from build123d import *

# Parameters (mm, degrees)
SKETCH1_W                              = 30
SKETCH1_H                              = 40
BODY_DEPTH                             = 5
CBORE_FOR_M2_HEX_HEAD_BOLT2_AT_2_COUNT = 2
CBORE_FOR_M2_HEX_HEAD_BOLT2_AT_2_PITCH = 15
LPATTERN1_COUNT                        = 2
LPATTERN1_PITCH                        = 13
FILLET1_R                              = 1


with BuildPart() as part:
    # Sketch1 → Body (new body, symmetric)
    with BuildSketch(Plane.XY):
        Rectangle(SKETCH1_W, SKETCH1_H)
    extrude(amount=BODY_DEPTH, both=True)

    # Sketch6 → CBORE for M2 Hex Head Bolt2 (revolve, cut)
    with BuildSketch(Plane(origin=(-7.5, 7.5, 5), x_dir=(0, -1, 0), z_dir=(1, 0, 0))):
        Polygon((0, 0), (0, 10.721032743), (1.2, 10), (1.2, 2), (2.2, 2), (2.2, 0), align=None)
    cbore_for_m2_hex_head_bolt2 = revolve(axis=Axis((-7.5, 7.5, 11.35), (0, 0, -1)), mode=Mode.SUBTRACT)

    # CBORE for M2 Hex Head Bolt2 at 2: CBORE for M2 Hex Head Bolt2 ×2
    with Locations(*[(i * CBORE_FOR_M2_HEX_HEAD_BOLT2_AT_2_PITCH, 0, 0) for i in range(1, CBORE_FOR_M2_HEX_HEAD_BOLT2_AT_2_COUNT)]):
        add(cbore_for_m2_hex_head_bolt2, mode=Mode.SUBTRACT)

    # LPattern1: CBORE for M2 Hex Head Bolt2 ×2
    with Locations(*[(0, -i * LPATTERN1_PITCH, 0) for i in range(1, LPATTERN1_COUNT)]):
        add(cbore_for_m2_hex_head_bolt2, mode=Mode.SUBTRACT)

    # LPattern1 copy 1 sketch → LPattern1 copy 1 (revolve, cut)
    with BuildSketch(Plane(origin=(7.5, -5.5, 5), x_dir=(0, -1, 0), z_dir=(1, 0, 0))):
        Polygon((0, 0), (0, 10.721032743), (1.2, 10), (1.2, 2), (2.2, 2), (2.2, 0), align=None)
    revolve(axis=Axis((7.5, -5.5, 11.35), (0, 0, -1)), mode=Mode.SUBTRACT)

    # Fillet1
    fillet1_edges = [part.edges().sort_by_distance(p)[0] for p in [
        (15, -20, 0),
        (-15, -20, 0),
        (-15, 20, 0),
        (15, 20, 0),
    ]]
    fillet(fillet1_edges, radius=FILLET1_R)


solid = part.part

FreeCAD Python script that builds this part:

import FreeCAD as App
import Part
import Sketcher
from FreeCAD import Vector
Q = App.Units.Quantity


def edges_at(feature, points):
    """Names of the edges that pass closest to the given points."""
    edges = feature.Shape.Edges
    near = lambda p: min(range(len(edges)), key=lambda i: edges[i].distToShape(Part.Vertex(*p))[0])
    return sorted({f"Edge{near(p) + 1}" for p in points})

doc = App.newDocument("Part")
body = doc.addObject("PartDesign::Body", "Body")

# Sketch on XY plane
sketch1 = doc.addObject("Sketcher::SketchObject", "Sketch")
body.addObject(sketch1)
sketch1.AttachmentSupport = (doc.XY_Plane, [""])
sketch1.MapMode = "FlatFace"
sketch1.addGeometry(Part.LineSegment(Vector(-15, 20, 0), Vector(-15, -20, 0)), False)
sketch1.addGeometry(Part.LineSegment(Vector(-15, -20, 0), Vector(15, -20, 0)), False)
sketch1.addGeometry(Part.LineSegment(Vector(15, -20, 0), Vector(15, 20, 0)), False)
sketch1.addGeometry(Part.LineSegment(Vector(15, 20, 0), Vector(-15, 20, 0)), False)
sketch1.addConstraint(Sketcher.Constraint("Coincident", 0, 2, 1, 1))
sketch1.addConstraint(Sketcher.Constraint("Coincident", 1, 2, 2, 1))
sketch1.addConstraint(Sketcher.Constraint("Coincident", 2, 2, 3, 1))
sketch1.addConstraint(Sketcher.Constraint("Coincident", 3, 2, 0, 1))
sketch1.addConstraint(Sketcher.Constraint("Vertical", 0))
sketch1.addConstraint(Sketcher.Constraint("Horizontal", 1))
sketch1.addConstraint(Sketcher.Constraint("Vertical", 2))
sketch1.addConstraint(Sketcher.Constraint("Horizontal", 3))
sketch1.addConstraint(Sketcher.Constraint("Symmetric", 0, 2, 2, 2, -1, 1))
sketch1.addConstraint(Sketcher.Constraint("DistanceX", 1, 1, 1, 2, 30.0))
sketch1.addConstraint(Sketcher.Constraint("DistanceY", 0, 2, 0, 1, 40.0))
pad1 = doc.addObject("PartDesign::Pad", "Pad")
body.addObject(pad1)
pad1.Profile = sketch1
pad1.Length = 10
pad1.Midplane = True

# Sketch on YZ plane
sketch2 = doc.addObject("Sketcher::SketchObject", "Sketch001")
body.addObject(sketch2)
sketch2.AttachmentSupport = (doc.YZ_Plane, [""])
sketch2.MapMode = "FlatFace"
sketch2.AttachmentOffset = App.Placement(Vector(0, 0, -7.5), App.Rotation())
sketch2.addGeometry(Part.LineSegment(Vector(7.5, -5.7, 0), Vector(7.5, 5, 0)), False)
sketch2.addGeometry(Part.LineSegment(Vector(7.5, 5, 0), Vector(5.3, 5, 0)), False)
sketch2.addGeometry(Part.LineSegment(Vector(5.3, 5, 0), Vector(5.3, 3, 0)), False)
sketch2.addGeometry(Part.LineSegment(Vector(5.3, 3, 0), Vector(6.3, 3, 0)), False)
sketch2.addGeometry(Part.LineSegment(Vector(6.3, 3, 0), Vector(6.3, -5, 0)), False)
sketch2.addGeometry(Part.LineSegment(Vector(6.3, -5, 0), Vector(7.5, -5.7, 0)), False)
sketch2.addGeometry(Part.LineSegment(Vector(7.5, 5, 0), Vector(7.5, -5.7, 0)), True)  # axis
sketch2.addConstraint(Sketcher.Constraint("Coincident", 0, 2, 1, 1))
sketch2.addConstraint(Sketcher.Constraint("Coincident", 1, 2, 2, 1))
sketch2.addConstraint(Sketcher.Constraint("Coincident", 2, 2, 3, 1))
sketch2.addConstraint(Sketcher.Constraint("Coincident", 3, 2, 4, 1))
sketch2.addConstraint(Sketcher.Constraint("Coincident", 4, 2, 5, 1))
sketch2.addConstraint(Sketcher.Constraint("Coincident", 5, 2, 0, 1))
sketch2.addConstraint(Sketcher.Constraint("Vertical", 0))
sketch2.addConstraint(Sketcher.Constraint("Horizontal", 1))
sketch2.addConstraint(Sketcher.Constraint("Vertical", 2))
sketch2.addConstraint(Sketcher.Constraint("Horizontal", 3))
sketch2.addConstraint(Sketcher.Constraint("Vertical", 4))
sketch2.addConstraint(Sketcher.Constraint("Vertical", 6))
sketch2.addConstraint(Sketcher.Constraint("Coincident", 6, 1, 0, 2))
sketch2.addConstraint(Sketcher.Constraint("Equal", 0, 6))
sketch2.addConstraint(Sketcher.Constraint("DistanceX", 3, 1, 3, 2, 1.0))
sketch2.addConstraint(Sketcher.Constraint("DistanceY", 2, 2, 2, 1, 2.0))
sketch2.addConstraint(Sketcher.Constraint("DistanceY", 4, 2, 4, 1, 8.0))
sketch2.addConstraint(Sketcher.Constraint("Angle", 5, Q("-31 deg")))
sketch2.addConstraint(Sketcher.Constraint("DistanceX", 1, 2, 1, 1, 2.2))
sketch2.addConstraint(Sketcher.Constraint("DistanceY", -1, 1, 0, 2, 5.0))
sketch2.addConstraint(Sketcher.Constraint("DistanceX", -1, 1, 0, 2, 7.5))
groove = doc.addObject("PartDesign::Groove", "Groove")
body.addObject(groove)
groove.Profile = sketch2
groove.ReferenceAxis = (sketch2, ["Axis0"])
groove.Angle = 360
doc.recompute()

linearpattern = doc.addObject("PartDesign::LinearPattern", "LinearPattern")
body.addObject(linearpattern)
linearpattern.Originals = [groove]
linearpattern.Direction = (doc.X_Axis, [""])
linearpattern.Mode = "offset"
linearpattern.Offset = 15
linearpattern.Occurrences = 2
body.Tip = linearpattern
doc.recompute()

linearpattern2 = doc.addObject("PartDesign::LinearPattern", "LinearPattern001")
body.addObject(linearpattern2)
linearpattern2.Originals = [groove]
linearpattern2.Direction = (doc.Y_Axis, [""])
linearpattern2.Mode = "offset"
linearpattern2.Offset = 13
linearpattern2.Occurrences = 2
linearpattern2.Reversed = True
body.Tip = linearpattern2

# Sketch on YZ plane
sketch3 = doc.addObject("Sketcher::SketchObject", "Sketch002")
body.addObject(sketch3)
sketch3.AttachmentSupport = (doc.YZ_Plane, [""])
sketch3.MapMode = "FlatFace"
sketch3.AttachmentOffset = App.Placement(Vector(0, 0, 7.5), App.Rotation())
sketch3.addGeometry(Part.LineSegment(Vector(-5.5, -5.7, 0), Vector(-5.5, 5, 0)), False)
sketch3.addGeometry(Part.LineSegment(Vector(-5.5, 5, 0), Vector(-7.7, 5, 0)), False)
sketch3.addGeometry(Part.LineSegment(Vector(-7.7, 5, 0), Vector(-7.7, 3, 0)), False)
sketch3.addGeometry(Part.LineSegment(Vector(-7.7, 3, 0), Vector(-6.7, 3, 0)), False)
sketch3.addGeometry(Part.LineSegment(Vector(-6.7, 3, 0), Vector(-6.7, -5, 0)), False)
sketch3.addGeometry(Part.LineSegment(Vector(-6.7, -5, 0), Vector(-5.5, -5.7, 0)), False)
sketch3.addGeometry(Part.LineSegment(Vector(-5.5, 5, 0), Vector(-5.5, -5.7, 0)), True)  # axis
sketch3.addConstraint(Sketcher.Constraint("Coincident", 0, 2, 1, 1))
sketch3.addConstraint(Sketcher.Constraint("Coincident", 1, 2, 2, 1))
sketch3.addConstraint(Sketcher.Constraint("Coincident", 2, 2, 3, 1))
sketch3.addConstraint(Sketcher.Constraint("Coincident", 3, 2, 4, 1))
sketch3.addConstraint(Sketcher.Constraint("Coincident", 4, 2, 5, 1))
sketch3.addConstraint(Sketcher.Constraint("Coincident", 5, 2, 0, 1))
sketch3.addConstraint(Sketcher.Constraint("Vertical", 0))
sketch3.addConstraint(Sketcher.Constraint("Horizontal", 1))
sketch3.addConstraint(Sketcher.Constraint("Vertical", 2))
sketch3.addConstraint(Sketcher.Constraint("Horizontal", 3))
sketch3.addConstraint(Sketcher.Constraint("Vertical", 4))
sketch3.addConstraint(Sketcher.Constraint("Vertical", 6))
sketch3.addConstraint(Sketcher.Constraint("Coincident", 6, 1, 0, 2))
sketch3.addConstraint(Sketcher.Constraint("Equal", 0, 6))
sketch3.addConstraint(Sketcher.Constraint("DistanceX", 3, 1, 3, 2, 1.0))
sketch3.addConstraint(Sketcher.Constraint("DistanceY", 2, 2, 2, 1, 2.0))
sketch3.addConstraint(Sketcher.Constraint("DistanceY", 4, 2, 4, 1, 8.0))
sketch3.addConstraint(Sketcher.Constraint("Angle", 5, Q("-31 deg")))
sketch3.addConstraint(Sketcher.Constraint("DistanceX", 1, 2, 1, 1, 2.2))
sketch3.addConstraint(Sketcher.Constraint("DistanceY", -1, 1, 0, 2, 5.0))
sketch3.addConstraint(Sketcher.Constraint("DistanceX", 0, 2, -1, 1, 5.5))
groove2 = doc.addObject("PartDesign::Groove", "Groove001")
body.addObject(groove2)
groove2.Profile = sketch3
groove2.ReferenceAxis = (sketch3, ["Axis0"])
groove2.Angle = 360
doc.recompute()

fillet = doc.addObject("PartDesign::Fillet", "Fillet")
body.addObject(fillet)
fillet.Base = (groove2, edges_at(groove2, [
    (15, -20, 0),
    (-15, -20, 0),
    (-15, 20, 0),
    (15, 20, 0),
]))
fillet.Radius = 1

doc.recompute()
